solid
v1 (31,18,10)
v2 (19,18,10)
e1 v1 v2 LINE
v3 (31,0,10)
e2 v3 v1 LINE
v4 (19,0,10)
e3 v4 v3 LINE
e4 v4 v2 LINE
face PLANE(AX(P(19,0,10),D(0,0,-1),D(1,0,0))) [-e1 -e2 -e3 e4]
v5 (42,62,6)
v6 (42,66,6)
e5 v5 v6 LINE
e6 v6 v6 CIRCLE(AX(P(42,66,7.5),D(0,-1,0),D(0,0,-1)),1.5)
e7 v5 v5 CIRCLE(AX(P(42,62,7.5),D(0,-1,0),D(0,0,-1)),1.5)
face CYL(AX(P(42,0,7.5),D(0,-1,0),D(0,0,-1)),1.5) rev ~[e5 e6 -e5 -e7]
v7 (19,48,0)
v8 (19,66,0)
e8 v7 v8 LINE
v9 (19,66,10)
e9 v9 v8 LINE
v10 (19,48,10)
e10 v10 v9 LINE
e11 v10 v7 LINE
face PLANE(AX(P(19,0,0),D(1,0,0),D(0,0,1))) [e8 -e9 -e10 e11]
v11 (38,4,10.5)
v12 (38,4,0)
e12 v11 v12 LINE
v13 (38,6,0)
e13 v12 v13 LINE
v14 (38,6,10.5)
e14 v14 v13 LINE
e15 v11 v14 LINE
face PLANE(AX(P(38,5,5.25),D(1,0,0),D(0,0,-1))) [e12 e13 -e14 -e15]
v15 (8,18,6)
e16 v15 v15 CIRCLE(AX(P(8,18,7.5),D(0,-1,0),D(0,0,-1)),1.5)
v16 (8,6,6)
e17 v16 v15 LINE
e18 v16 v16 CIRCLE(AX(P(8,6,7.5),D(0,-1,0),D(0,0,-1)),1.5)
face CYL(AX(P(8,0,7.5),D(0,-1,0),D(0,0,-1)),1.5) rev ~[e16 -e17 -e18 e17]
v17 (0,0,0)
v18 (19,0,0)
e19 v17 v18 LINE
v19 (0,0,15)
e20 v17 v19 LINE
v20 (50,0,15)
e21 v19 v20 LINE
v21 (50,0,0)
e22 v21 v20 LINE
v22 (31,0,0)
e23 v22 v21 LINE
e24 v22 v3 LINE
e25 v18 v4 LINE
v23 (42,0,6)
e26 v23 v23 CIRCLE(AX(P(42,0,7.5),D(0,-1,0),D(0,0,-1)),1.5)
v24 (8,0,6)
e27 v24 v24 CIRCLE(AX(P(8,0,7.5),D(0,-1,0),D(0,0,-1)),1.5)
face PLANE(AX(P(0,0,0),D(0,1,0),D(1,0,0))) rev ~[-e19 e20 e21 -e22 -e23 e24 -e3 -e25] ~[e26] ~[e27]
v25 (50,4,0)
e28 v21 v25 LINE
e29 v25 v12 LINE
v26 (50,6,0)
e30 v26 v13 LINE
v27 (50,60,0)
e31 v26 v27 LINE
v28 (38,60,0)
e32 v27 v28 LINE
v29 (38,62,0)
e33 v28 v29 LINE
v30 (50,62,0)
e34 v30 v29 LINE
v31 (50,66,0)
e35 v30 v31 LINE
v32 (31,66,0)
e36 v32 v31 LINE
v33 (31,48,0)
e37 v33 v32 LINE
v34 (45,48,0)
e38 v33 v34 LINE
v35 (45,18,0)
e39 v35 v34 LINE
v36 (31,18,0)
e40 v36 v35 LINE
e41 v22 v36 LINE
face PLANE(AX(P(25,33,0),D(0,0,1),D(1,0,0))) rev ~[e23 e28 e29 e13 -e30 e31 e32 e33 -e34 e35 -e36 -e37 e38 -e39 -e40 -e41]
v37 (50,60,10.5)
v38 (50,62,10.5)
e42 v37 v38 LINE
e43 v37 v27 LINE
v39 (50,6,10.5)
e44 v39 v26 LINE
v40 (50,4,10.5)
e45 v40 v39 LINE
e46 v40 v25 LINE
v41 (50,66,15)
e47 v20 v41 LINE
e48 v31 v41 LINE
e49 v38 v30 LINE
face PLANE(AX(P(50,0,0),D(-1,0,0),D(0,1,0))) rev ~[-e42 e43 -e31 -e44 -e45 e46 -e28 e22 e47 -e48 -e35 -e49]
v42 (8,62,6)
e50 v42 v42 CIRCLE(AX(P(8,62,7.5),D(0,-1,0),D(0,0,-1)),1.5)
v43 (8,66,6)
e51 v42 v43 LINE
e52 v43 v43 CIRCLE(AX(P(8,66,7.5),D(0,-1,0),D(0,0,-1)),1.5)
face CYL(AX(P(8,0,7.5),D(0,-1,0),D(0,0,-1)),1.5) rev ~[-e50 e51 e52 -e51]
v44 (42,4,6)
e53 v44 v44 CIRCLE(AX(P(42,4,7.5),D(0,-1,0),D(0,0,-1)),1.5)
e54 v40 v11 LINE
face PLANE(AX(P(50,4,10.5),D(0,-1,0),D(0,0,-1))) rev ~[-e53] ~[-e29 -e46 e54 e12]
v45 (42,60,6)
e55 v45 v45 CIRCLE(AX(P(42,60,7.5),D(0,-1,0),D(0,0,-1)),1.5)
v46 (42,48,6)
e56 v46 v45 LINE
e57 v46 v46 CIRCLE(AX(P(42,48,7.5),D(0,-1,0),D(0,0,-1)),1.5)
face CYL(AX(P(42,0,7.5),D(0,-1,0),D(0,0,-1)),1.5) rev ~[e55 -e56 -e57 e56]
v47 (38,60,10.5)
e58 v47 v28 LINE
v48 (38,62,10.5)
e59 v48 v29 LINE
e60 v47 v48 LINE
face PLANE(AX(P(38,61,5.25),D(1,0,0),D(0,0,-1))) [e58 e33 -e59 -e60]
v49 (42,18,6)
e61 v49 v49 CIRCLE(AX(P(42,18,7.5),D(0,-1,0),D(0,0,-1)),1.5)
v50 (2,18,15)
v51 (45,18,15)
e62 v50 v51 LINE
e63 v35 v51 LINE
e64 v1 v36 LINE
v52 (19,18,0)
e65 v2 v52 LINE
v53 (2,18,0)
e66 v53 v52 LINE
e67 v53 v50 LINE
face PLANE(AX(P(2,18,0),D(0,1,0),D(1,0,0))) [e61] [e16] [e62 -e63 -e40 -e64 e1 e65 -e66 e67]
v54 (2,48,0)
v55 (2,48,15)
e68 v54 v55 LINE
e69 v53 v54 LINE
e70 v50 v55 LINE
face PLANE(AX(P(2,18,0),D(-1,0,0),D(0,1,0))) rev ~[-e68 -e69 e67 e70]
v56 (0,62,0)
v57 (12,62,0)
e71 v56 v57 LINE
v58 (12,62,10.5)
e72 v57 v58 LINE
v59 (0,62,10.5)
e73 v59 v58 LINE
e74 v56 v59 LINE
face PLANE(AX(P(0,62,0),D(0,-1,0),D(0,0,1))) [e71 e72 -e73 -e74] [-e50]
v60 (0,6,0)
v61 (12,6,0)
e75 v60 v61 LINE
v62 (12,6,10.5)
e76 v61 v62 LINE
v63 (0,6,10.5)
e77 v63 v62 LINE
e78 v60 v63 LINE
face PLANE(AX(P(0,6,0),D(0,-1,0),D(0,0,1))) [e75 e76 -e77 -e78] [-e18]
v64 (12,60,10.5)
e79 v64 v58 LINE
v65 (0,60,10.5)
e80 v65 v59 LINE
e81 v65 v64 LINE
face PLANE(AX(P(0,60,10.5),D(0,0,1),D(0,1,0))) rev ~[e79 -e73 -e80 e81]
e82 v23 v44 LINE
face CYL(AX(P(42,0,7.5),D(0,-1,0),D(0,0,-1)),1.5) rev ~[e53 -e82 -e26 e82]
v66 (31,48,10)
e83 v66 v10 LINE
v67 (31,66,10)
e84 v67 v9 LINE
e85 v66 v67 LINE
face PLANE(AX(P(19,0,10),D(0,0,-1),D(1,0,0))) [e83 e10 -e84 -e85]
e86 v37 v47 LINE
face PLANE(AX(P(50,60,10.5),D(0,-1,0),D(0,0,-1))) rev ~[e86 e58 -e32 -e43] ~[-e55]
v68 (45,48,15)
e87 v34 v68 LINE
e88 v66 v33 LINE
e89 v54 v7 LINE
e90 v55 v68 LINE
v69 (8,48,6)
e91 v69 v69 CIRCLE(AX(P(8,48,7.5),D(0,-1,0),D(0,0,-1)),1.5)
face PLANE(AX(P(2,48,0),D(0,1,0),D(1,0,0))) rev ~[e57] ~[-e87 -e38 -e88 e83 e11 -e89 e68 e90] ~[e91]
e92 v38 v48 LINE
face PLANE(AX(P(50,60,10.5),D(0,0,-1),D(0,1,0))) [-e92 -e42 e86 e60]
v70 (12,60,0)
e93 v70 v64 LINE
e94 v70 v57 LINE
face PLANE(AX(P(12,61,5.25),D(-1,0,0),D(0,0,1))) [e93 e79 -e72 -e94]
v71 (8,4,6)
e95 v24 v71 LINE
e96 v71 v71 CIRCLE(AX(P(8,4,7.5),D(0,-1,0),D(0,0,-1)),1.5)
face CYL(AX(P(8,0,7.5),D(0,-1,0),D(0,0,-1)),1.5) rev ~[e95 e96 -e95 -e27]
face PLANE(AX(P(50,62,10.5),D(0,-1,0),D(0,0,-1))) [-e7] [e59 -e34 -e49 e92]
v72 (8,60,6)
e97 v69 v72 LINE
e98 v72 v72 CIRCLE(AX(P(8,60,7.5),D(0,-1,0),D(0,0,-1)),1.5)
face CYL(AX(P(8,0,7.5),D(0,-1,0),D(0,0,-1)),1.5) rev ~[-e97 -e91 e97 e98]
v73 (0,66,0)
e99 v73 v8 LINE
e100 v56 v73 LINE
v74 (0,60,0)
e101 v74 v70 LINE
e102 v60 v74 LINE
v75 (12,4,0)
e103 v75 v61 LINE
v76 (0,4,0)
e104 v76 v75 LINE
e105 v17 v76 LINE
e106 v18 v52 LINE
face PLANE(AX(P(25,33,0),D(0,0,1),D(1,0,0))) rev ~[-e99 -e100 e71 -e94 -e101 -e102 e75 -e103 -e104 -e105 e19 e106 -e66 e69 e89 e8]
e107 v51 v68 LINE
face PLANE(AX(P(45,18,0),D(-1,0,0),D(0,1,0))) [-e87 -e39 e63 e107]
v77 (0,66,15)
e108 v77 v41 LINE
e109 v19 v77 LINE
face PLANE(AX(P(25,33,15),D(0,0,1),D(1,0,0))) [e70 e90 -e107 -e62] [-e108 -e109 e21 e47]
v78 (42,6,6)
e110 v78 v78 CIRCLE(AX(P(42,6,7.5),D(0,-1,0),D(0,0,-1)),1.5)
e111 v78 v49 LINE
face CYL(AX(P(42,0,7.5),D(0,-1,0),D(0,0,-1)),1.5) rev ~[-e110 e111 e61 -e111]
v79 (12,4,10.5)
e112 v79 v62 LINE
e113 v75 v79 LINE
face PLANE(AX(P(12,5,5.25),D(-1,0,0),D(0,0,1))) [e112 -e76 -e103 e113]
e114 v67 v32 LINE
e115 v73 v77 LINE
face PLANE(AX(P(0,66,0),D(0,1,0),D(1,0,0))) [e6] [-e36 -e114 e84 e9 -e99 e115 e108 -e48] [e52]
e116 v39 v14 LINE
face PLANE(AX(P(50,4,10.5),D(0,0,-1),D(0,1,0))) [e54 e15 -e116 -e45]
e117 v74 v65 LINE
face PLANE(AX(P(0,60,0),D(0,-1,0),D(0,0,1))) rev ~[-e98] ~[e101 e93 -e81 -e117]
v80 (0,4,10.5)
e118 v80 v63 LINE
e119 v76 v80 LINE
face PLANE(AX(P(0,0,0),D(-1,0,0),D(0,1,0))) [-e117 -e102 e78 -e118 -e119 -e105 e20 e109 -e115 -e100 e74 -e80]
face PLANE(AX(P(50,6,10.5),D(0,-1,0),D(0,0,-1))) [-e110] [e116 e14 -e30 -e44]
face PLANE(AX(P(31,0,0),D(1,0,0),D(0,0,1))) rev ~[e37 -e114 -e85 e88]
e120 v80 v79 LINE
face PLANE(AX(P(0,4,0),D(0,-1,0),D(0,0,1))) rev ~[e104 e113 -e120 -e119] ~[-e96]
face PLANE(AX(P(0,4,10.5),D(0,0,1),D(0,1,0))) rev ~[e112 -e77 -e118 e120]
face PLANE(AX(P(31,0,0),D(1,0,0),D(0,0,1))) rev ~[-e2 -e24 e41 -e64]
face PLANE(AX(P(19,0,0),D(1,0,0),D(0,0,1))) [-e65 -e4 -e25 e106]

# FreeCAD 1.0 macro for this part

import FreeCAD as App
import Part
import Sketcher
from FreeCAD import Vector

doc = App.newDocument("Part")
body = doc.addObject("PartDesign::Body", "Body")

sketch1 = body.newObject("Sketcher::SketchObject", "Sketch")
sketch1.AttachmentSupport = (doc.getObject("XY_Plane"), [""])
sketch1.MapMode = "FlatFace"
sketch1.addGeometry([
    Part.LineSegment(Vector(0, 66, 0), Vector(0, 0, 0)),
    Part.LineSegment(Vector(0, 0, 0), Vector(50, 0, 0)),
    Part.LineSegment(Vector(50, 0, 0), Vector(50, 66, 0)),
    Part.LineSegment(Vector(50, 66, 0), Vector(0, 66, 0)),
    Part.LineSegment(Vector(45, 18, 0), Vector(2, 18, 0)),
    Part.LineSegment(Vector(2, 18, 0), Vector(2, 48, 0)),
    Part.LineSegment(Vector(2, 48, 0), Vector(45, 48, 0)),
    Part.LineSegment(Vector(45, 48, 0), Vector(45, 18, 0)),
], False)
sketch1.addConstraint([
    Sketcher.Constraint("Coincident", 0, 2, 1, 1),
    Sketcher.Constraint("Coincident", 1, 2, 2, 1),
    Sketcher.Constraint("Coincident", 2, 2, 3, 1),
    Sketcher.Constraint("Coincident", 3, 2, 0, 1),
    Sketcher.Constraint("Coincident", 4, 2, 5, 1),
    Sketcher.Constraint("Coincident", 5, 2, 6, 1),
    Sketcher.Constraint("Coincident", 6, 2, 7, 1),
    Sketcher.Constraint("Coincident", 7, 2, 4, 1),
    Sketcher.Constraint("Vertical", 0),
    Sketcher.Constraint("Horizontal", 1),
    Sketcher.Constraint("Vertical", 2),
    Sketcher.Constraint("Horizontal", 3),
    Sketcher.Constraint("Horizontal", 4),
    Sketcher.Constraint("Vertical", 5),
    Sketcher.Constraint("Horizontal", 6),
    Sketcher.Constraint("Vertical", 7),
    Sketcher.Constraint("Coincident", 0, 2, -1, 1),
    Sketcher.Constraint("DistanceX", 1, 1, 1, 2, 50.0),
    Sketcher.Constraint("DistanceX", 4, 2, 4, 1, 43.0),
    Sketcher.Constraint("DistanceY", 0, 2, 0, 1, 66.0),
    Sketcher.Constraint("DistanceY", 5, 1, 5, 2, 30.0),
    Sketcher.Constraint("DistanceX", -1, 1, 4, 2, 2.0),
    Sketcher.Constraint("DistanceY", -1, 1, 4, 2, 18.0),
])
pad1 = body.newObject("PartDesign::Pad", "Pad")
pad1.Profile = sketch1
pad1.Length = 15

sketch2 = body.newObject("Sketcher::SketchObject", "Sketch001")
sketch2.AttachmentSupport = (doc.getObject("XZ_Plane"), [""])
sketch2.MapMode = "FlatFace"
sketch2.addGeometry([
    Part.Circle(Vector(42, 7.5, 0), Vector(0, 0, 1), 1.5),
    Part.Circle(Vector(8, 7.5, 0), Vector(0, 0, 1), 1.5),
    Part.LineSegment(Vector(19, 10, 0), Vector(19, 0, 0)),
    Part.LineSegment(Vector(19, 0, 0), Vector(31, 0, 0)),
    Part.LineSegment(Vector(31, 0, 0), Vector(31, 10, 0)),
    Part.LineSegment(Vector(31, 10, 0), Vector(19, 10, 0)),
], False)
sketch2.addConstraint([
    Sketcher.Constraint("Coincident", 2, 2, 3, 1),
    Sketcher.Constraint("Coincident", 3, 2, 4, 1),
    Sketcher.Constraint("Coincident", 4, 2, 5, 1),
    Sketcher.Constraint("Coincident", 5, 2, 2, 1),
    Sketcher.Constraint("Vertical", 2),
    Sketcher.Constraint("Horizontal", 3),
    Sketcher.Constraint("Vertical", 4),
    Sketcher.Constraint("Horizontal", 5),
    Sketcher.Constraint("Equal", 0, 1),
    Sketcher.Constraint("PointOnObject", 2, 2, -1),
    Sketcher.Constraint("Horizontal", 0, 3, 1, 3),
    Sketcher.Constraint("Diameter", 0, 3.0),
    Sketcher.Constraint("DistanceX", 3, 1, 3, 2, 12.0),
    Sketcher.Constraint("DistanceY", 2, 2, 2, 1, 10.0),
    Sketcher.Constraint("DistanceX", -1, 1, 0, 3, 42.0),
    Sketcher.Constraint("DistanceX", -1, 1, 1, 3, 8.0),
    Sketcher.Constraint("DistanceX", -1, 1, 2, 2, 19.0),
    Sketcher.Constraint("DistanceY", -1, 1, 0, 3, 7.5),
])
pocket1 = body.newObject("PartDesign::Pocket", "Pocket")
pocket1.Profile = sketch2
pocket1.Type = "ThroughAll"

sketch3 = body.newObject("Sketcher::SketchObject", "Sketch002")
sketch3.AttachmentSupport = (doc.getObject("YZ_Plane"), [""])
sketch3.MapMode = "FlatFace"
sketch3.addGeometry([
    Part.LineSegment(Vector(62, 0, 0), Vector(60, 0, 0)),
    Part.LineSegment(Vector(60, 0, 0), Vector(60, 10.5, 0)),
    Part.LineSegment(Vector(60, 10.5, 0), Vector(62, 10.5, 0)),
    Part.LineSegment(Vector(62, 10.5, 0), Vector(62, 0, 0)),
    Part.LineSegment(Vector(6, 0, 0), Vector(4, 0, 0)),
    Part.LineSegment(Vector(4, 0, 0), Vector(4, 10.5, 0)),
    Part.LineSegment(Vector(4, 10.5, 0), Vector(6, 10.5, 0)),
    Part.LineSegment(Vector(6, 10.5, 0), Vector(6, 0, 0)),
], False)
sketch3.addConstraint([
    Sketcher.Constraint("Coincident", 0, 2, 1, 1),
    Sketcher.Constraint("Coincident", 1, 2, 2, 1),
    Sketcher.Constraint("Coincident", 2, 2, 3, 1),
    Sketcher.Constraint("Coincident", 3, 2, 0, 1),
    Sketcher.Constraint("Coincident", 4, 2, 5, 1),
    Sketcher.Constraint("Coincident", 5, 2, 6, 1),
    Sketcher.Constraint("Coincident", 6, 2, 7, 1),
    Sketcher.Constraint("Coincident", 7, 2, 4, 1),
    Sketcher.Constraint("Horizontal", 0),
    Sketcher.Constraint("Vertical", 1),
    Sketcher.Constraint("Horizontal", 2),
    Sketcher.Constraint("Vertical", 3),
    Sketcher.Constraint("Horizontal", 4),
    Sketcher.Constraint("Vertical", 5),
    Sketcher.Constraint("Horizontal", 6),
    Sketcher.Constraint("Vertical", 7),
    Sketcher.Constraint("PointOnObject", 0, 2, -1),
    Sketcher.Constraint("PointOnObject", 4, 2, -1),
    Sketcher.Constraint("Horizontal", 2, 2, 5, 2),
    Sketcher.Constraint("Equal", 2, 4),
    Sketcher.Constraint("DistanceX", 0, 2, 0, 1, 2.0),
    Sketcher.Constraint("DistanceY", 1, 1, 1, 2, 10.5),
    Sketcher.Constraint("DistanceX", -1, 1, 0, 2, 60.0),
    Sketcher.Constraint("DistanceX", -1, 1, 4, 2, 4.0),
])
pocket2 = body.newObject("PartDesign::Pocket", "Pocket001")
pocket2.Profile = sketch3
pocket2.Length = 12
pocket2.Reversed = True

sketch4 = body.newObject("Sketcher::SketchObject", "Sketch003")
sketch4.AttachmentSupport = (doc.getObject("YZ_Plane"), [""])
sketch4.MapMode = "FlatFace"
sketch4.AttachmentOffset = App.Placement(Vector(0, 0, 50), App.Rotation())
sketch4.addGeometry([
    Part.LineSegment(Vector(6, 10.5, 0), Vector(4, 10.5, 0)),
    Part.LineSegment(Vector(4, 10.5, 0), Vector(4, 0, 0)),
    Part.LineSegment(Vector(4, 0, 0), Vector(6, 0, 0)),
    Part.LineSegment(Vector(6, 0, 0), Vector(6, 10.5, 0)),
    Part.LineSegment(Vector(62, 10.5, 0), Vector(60, 10.5, 0)),
    Part.LineSegment(Vector(60, 10.5, 0), Vector(60, 0, 0)),
    Part.LineSegment(Vector(60, 0, 0), Vector(62, 0, 0)),
    Part.LineSegment(Vector(62, 0, 0), Vector(62, 10.5, 0)),
], False)
sketch4.addConstraint([
    Sketcher.Constraint("Coincident", 0, 2, 1, 1),
    Sketcher.Constraint("Coincident", 1, 2, 2, 1),
    Sketcher.Constraint("Coincident", 2, 2, 3, 1),
    Sketcher.Constraint("Coincident", 3, 2, 0, 1),
    Sketcher.Constraint("Coincident", 4, 2, 5, 1),
    Sketcher.Constraint("Coincident", 5, 2, 6, 1),
    Sketcher.Constraint("Coincident", 6, 2, 7, 1),
    Sketcher.Constraint("Coincident", 7, 2, 4, 1),
    Sketcher.Constraint("Horizontal", 0),
    Sketcher.Constraint("Vertical", 1),
    Sketcher.Constraint("Horizontal", 2),
    Sketcher.Constraint("Vertical", 3),
    Sketcher.Constraint("Horizontal", 4),
    Sketcher.Constraint("Vertical", 5),
    Sketcher.Constraint("Horizontal", 6),
    Sketcher.Constraint("Vertical", 7),
    Sketcher.Constraint("PointOnObject", 1, 2, -1),
    Sketcher.Constraint("PointOnObject", 5, 2, -1),
    Sketcher.Constraint("Horizontal", 3, 2, 4, 2),
    Sketcher.Constraint("Equal", 2, 4),
    Sketcher.Constraint("DistanceX", 0, 2, 0, 1, 2.0),
    Sketcher.Constraint("DistanceY", 1, 2, 1, 1, 10.5),
    Sketcher.Constraint("DistanceX", -1, 1, 0, 2, 4.0),
    Sketcher.Constraint("DistanceX", -1, 1, 4, 2, 60.0),
])
pocket3 = body.newObject("PartDesign::Pocket", "Pocket002")
pocket3.Profile = sketch4
pocket3.Length = 12

doc.recompute()
